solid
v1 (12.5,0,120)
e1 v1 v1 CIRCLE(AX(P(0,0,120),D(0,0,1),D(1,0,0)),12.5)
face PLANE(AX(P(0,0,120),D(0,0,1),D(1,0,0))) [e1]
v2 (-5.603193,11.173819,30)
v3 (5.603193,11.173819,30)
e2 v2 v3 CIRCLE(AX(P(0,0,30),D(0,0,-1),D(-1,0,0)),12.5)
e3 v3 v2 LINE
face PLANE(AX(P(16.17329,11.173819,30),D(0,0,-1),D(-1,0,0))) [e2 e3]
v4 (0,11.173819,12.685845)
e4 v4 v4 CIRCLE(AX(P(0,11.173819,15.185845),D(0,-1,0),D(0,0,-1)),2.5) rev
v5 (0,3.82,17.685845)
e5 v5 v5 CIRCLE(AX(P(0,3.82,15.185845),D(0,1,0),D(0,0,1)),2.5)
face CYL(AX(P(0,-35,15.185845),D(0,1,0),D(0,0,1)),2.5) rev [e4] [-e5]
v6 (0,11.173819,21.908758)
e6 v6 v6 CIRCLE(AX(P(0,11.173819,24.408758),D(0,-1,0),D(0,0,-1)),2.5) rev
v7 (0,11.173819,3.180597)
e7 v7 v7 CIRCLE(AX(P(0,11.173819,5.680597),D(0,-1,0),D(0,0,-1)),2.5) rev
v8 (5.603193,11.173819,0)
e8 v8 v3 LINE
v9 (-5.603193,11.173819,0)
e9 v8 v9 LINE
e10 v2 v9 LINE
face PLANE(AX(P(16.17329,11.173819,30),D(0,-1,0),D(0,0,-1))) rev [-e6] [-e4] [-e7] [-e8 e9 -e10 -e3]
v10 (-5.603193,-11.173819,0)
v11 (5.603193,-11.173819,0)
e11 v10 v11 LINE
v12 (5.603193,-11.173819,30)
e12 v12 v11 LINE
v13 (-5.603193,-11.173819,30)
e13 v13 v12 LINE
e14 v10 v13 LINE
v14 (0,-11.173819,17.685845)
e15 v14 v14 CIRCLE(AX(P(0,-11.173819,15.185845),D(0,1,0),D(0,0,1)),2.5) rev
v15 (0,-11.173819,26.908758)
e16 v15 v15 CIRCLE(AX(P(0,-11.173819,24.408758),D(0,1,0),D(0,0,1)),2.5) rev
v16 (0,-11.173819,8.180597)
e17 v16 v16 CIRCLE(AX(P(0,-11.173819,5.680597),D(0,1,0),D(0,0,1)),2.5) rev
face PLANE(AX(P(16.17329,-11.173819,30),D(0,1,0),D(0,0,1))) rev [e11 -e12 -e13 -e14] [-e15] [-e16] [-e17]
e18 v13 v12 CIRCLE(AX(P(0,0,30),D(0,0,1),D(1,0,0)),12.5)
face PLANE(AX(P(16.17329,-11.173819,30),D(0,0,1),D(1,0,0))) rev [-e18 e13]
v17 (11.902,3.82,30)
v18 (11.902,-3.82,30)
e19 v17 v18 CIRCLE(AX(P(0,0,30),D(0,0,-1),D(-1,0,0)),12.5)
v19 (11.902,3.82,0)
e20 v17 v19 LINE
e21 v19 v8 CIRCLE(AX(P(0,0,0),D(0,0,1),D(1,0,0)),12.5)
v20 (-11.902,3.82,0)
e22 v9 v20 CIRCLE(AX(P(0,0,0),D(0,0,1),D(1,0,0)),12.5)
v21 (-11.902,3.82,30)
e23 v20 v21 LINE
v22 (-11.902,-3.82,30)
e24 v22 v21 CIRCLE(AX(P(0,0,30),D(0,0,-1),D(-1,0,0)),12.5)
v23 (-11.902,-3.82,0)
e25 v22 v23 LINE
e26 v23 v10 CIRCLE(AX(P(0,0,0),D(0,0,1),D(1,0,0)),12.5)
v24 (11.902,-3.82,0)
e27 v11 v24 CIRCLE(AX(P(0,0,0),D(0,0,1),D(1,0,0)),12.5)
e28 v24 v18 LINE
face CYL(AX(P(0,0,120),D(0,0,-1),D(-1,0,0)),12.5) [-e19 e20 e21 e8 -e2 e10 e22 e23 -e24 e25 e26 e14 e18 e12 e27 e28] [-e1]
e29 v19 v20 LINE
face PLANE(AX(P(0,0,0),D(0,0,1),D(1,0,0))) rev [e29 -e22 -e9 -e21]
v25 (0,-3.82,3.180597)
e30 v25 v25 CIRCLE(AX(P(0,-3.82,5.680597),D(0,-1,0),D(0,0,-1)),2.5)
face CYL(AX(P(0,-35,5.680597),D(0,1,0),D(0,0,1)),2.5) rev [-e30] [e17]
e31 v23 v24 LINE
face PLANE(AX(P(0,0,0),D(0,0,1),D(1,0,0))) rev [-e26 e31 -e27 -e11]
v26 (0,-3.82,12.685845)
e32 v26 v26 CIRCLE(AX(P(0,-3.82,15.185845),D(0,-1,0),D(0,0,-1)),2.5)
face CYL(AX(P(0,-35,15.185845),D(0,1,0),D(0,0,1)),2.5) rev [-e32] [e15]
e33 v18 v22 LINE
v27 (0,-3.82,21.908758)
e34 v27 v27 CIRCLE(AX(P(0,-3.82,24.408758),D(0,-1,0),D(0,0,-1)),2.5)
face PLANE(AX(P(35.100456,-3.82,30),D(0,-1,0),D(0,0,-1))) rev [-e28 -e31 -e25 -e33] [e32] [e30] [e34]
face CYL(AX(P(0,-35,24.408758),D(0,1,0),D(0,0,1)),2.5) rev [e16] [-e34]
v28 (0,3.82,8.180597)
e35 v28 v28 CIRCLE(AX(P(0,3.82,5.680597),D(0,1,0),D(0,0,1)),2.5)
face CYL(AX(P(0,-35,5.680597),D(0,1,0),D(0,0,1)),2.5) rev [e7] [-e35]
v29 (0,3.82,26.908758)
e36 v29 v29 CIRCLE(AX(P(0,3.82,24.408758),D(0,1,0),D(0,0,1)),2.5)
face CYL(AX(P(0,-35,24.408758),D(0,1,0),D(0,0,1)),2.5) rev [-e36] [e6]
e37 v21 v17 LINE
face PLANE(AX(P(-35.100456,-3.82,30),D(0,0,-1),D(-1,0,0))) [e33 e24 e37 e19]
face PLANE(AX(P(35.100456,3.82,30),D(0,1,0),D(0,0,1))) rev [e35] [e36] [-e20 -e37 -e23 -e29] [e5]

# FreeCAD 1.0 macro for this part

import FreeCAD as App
import Part
import Sketcher
Q = App.Units.Quantity

doc = App.newDocument("Part")
params = doc.addObject("Spreadsheet::Sheet", "Params")
for row, (alias, value) in enumerate([
    ("sketch1_diameter", "25 mm"),
    ("pad1_length", "120 mm"),
    ("sketch2_height", "7.64 mm"),
    ("pocket1_length", "30 mm"),
    ("sketch3_diameter", "5 mm"),
    ("pocket2_length", "70 mm"),
    ("pocket3_length", "30 mm"),
], start=1):
    params.set(f"A{row}", alias)
    params.set(f"B{row}", "=" + value)
    params.setAlias(f"B{row}", alias)

body = doc.addObject("PartDesign::Body", "Body")

sketch1 = body.newObject("Sketcher::SketchObject", "Sketch")
sketch1.AttachmentSupport = (doc.getObject("XY_Plane"), [""])
sketch1.MapMode = "FlatFace"
sketch1.addGeometry(Part.Circle(App.Vector(0, 0, 0), App.Vector(0, 0, 1), 12), False)
sketch1.addConstraint([
    Sketcher.Constraint("Coincident", 0, 3, -1, 1),
    Sketcher.Constraint("Diameter", 0, Q("25 mm")),
])
sketch1.setExpression("Constraints[1]", "Params.sketch1_diameter")
pad1 = body.newObject("PartDesign::Pad", "Pad")
pad1.Profile = sketch1
pad1.setExpression("Length", "Params.pad1_length")

sketch2 = body.newObject("Sketcher::SketchObject", "Sketch001")
sketch2.AttachmentSupport = (doc.getObject("XY_Plane"), [""])
sketch2.MapMode = "FlatFace"
sketch2.addGeometry([
    Part.LineSegment(App.Vector(35, 4, 0), App.Vector(35, -4, 0)),
    Part.LineSegment(App.Vector(35, -4, 0), App.Vector(-35, -4, 0)),
    Part.LineSegment(App.Vector(-35, -4, 0), App.Vector(-35, 4, 0)),
    Part.LineSegment(App.Vector(-35, 4, 0), App.Vector(35, 4, 0)),
], False)
sketch2.addConstraint([
    Sketcher.Constraint("Coincident", 0, 2, 1, 1),
    Sketcher.Constraint("Coincident", 1, 2, 2, 1),
    Sketcher.Constraint("Coincident", 2, 2, 3, 1),
    Sketcher.Constraint("Coincident", 3, 2, 0, 1),
    Sketcher.Constraint("Vertical", 0),
    Sketcher.Constraint("Horizontal", 1),
    Sketcher.Constraint("Vertical", 2),
    Sketcher.Constraint("Horizontal", 3),
    Sketcher.Constraint("Symmetric", 0, 2, 2, 2, -1, 1),
    Sketcher.Constraint("DistanceY", 0, 2, 0, 1, Q("7.64 mm")),
    Sketcher.Constraint("DistanceX", 1, 2, 1, 1, Q("70.200912 mm")),
])
sketch2.setExpression("Constraints[9]", "Params.sketch2_height")
pocket1 = body.newObject("PartDesign::Pocket", "Pocket")
pocket1.Profile = sketch2
pocket1.setExpression("Length", "Params.pocket1_length")
pocket1.Reversed = True

sketch3 = body.newObject("Sketcher::SketchObject", "Sketch002")
sketch3.AttachmentSupport = (doc.getObject("XZ_Plane"), [""])
sketch3.MapMode = "FlatFace"
sketch3.addGeometry([
    Part.Circle(App.Vector(0, 5.7, 0), App.Vector(0, 0, 1), 2.5),
    Part.Circle(App.Vector(0, 15.2, 0), App.Vector(0, 0, 1), 2.5),
    Part.Circle(App.Vector(0, 24.4, 0), App.Vector(0, 0, 1), 2.5),
], False)
sketch3.addConstraint([
    Sketcher.Constraint("Equal", 0, 1),
    Sketcher.Constraint("Equal", 1, 2),
    Sketcher.Constraint("PointOnObject", 0, 3, -2),
    Sketcher.Constraint("PointOnObject", 1, 3, -2),
    Sketcher.Constraint("PointOnObject", 2, 3, -2),
    Sketcher.Constraint("Diameter", 0, Q("5 mm")),
    Sketcher.Constraint("DistanceY", -1, 1, 2, 3, Q("24.408758 mm")),
    Sketcher.Constraint("DistanceY", 0, 3, 2, 3, Q("18.728161 mm")),
    Sketcher.Constraint("DistanceY", -1, 1, 1, 3, Q("15.185845 mm")),
])
sketch3.setExpression("Constraints[5]", "Params.sketch3_diameter")
pocket2 = body.newObject("PartDesign::Pocket", "Pocket001")
pocket2.Profile = sketch3
pocket2.setExpression("Length", "Params.pocket2_length")
pocket2.Midplane = True

sketch4 = body.newObject("Sketcher::SketchObject", "Sketch003")
sketch4.AttachmentSupport = (doc.getObject("XY_Plane"), [""])
sketch4.MapMode = "FlatFace"
sketch4.addGeometry([
    Part.LineSegment(App.Vector(16, -11, 0), App.Vector(16, -18, 0)),
    Part.LineSegment(App.Vector(16, -18, 0), App.Vector(-18, -18, 0)),
    Part.LineSegment(App.Vector(-18, -18, 0), App.Vector(-18, -11, 0)),
    Part.LineSegment(App.Vector(-18, -11, 0), App.Vector(16, -11, 0)),
    Part.LineSegment(App.Vector(16, 18, 0), App.Vector(16, 11, 0)),
    Part.LineSegment(App.Vector(16, 11, 0), App.Vector(-18, 11, 0)),
    Part.LineSegment(App.Vector(-18, 11, 0), App.Vector(-18, 18, 0)),
    Part.LineSegment(App.Vector(-18, 18, 0), App.Vector(16, 18, 0)),
], False)
sketch4.addConstraint([
    Sketcher.Constraint("Coincident", 0, 2, 1, 1),
    Sketcher.Constraint("Coincident", 1, 2, 2, 1),
    Sketcher.Constraint("Coincident", 2, 2, 3, 1),
    Sketcher.Constraint("Coincident", 3, 2, 0, 1),
    Sketcher.Constraint("Coincident", 4, 2, 5, 1),
    Sketcher.Constraint("Coincident", 5, 2, 6, 1),
    Sketcher.Constraint("Coincident", 6, 2, 7, 1),
    Sketcher.Constraint("Coincident", 7, 2, 4, 1),
    Sketcher.Constraint("Vertical", 0),
    Sketcher.Constraint("Horizontal", 1),
    Sketcher.Constraint("Vertical", 2),
    Sketcher.Constraint("Horizontal", 3),
    Sketcher.Constraint("Vertical", 4),
    Sketcher.Constraint("Horizontal", 5),
    Sketcher.Constraint("Vertical", 6),
    Sketcher.Constraint("Horizontal", 7),
    Sketcher.Constraint("Symmetric", 3, 2, 4, 2, -1),
    Sketcher.Constraint("Symmetric", 1, 2, 6, 2, -1),
    Sketcher.Constraint("DistanceX", 1, 2, 1, 1, Q("33.796427 mm")),
    Sketcher.Constraint("DistanceY", 0, 2, 0, 1, Q("6.499313 mm")),
    Sketcher.Constraint("DistanceX", -1, 1, 0, 2, Q("16.17329 mm")),
    Sketcher.Constraint("DistanceY", 0, 2, -1, 1, Q("17.673132 mm")),
])
pocket3 = body.newObject("PartDesign::Pocket", "Pocket002")
pocket3.Profile = sketch4
pocket3.setExpression("Length", "Params.pocket3_length")
pocket3.Reversed = True

doc.recompute()
